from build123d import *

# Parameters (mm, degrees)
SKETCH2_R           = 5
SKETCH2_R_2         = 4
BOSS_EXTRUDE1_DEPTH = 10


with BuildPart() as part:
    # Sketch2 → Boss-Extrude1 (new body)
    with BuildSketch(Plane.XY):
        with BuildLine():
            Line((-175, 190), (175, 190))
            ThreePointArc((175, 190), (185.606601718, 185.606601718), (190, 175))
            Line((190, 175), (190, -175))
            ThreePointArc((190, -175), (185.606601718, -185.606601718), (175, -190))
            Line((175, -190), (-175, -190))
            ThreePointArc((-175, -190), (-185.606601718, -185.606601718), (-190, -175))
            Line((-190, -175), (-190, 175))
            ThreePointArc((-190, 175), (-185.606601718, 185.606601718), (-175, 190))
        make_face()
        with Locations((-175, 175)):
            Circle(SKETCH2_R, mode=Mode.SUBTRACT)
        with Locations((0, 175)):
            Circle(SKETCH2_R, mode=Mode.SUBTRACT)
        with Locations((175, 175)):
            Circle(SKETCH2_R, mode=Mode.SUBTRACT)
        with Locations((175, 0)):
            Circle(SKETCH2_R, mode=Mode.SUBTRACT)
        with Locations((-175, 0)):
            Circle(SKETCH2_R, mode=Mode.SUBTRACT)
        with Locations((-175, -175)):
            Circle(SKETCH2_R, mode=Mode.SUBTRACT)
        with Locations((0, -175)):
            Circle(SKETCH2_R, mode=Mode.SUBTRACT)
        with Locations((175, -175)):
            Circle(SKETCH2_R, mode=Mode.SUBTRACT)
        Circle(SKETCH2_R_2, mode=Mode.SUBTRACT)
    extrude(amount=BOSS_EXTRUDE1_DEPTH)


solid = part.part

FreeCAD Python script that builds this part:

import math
import FreeCAD as App
import Part
import Sketcher

doc = App.newDocument("Part")
params = doc.addObject("Spreadsheet::Sheet", "Params")
for row, (alias, value) in enumerate([
    ("sketch1_diameter", "10 mm"),
    ("sketch1_diameter2", "8 mm"),
    ("sketch1_radius", "15 mm"),
    ("sketch1_width", "350 mm"),
    ("pad1_length", "10 mm"),
], start=1):
    params.set(f"A{row}", alias)
    params.set(f"B{row}", "=" + value)
    params.setAlias(f"B{row}", alias)

body = doc.addObject("PartDesign::Body", "Body")

sketch1 = body.newObject("Sketcher::SketchObject", "Sketch")
sketch1.AttachmentSupport = (doc.getObject("XY_Plane"), [""])
sketch1.MapMode = "FlatFace"
sketch1.addGeometry([
    Part.LineSegment(App.Vector(175, 190, 0), App.Vector(-175, 190, 0)),
    Part.ArcOfCircle(Part.Circle(App.Vector(-175, 175, 0), App.Vector(0, 0, 1), 15), math.radians(90), math.radians(180)),
    Part.LineSegment(App.Vector(-190, 175, 0), App.Vector(-190, -175, 0)),
    Part.ArcOfCircle(Part.Circle(App.Vector(-175, -175, 0), App.Vector(0, 0, 1), 15), math.radians(180), math.radians(270)),
    Part.LineSegment(App.Vector(-175, -190, 0), App.Vector(175, -190, 0)),
    Part.ArcOfCircle(Part.Circle(App.Vector(175, -175, 0), App.Vector(0, 0, 1), 15), math.radians(-90), math.radians(0)),
    Part.LineSegment(App.Vector(190, -175, 0), App.Vector(190, 175, 0)),
    Part.ArcOfCircle(Part.Circle(App.Vector(175, 175, 0), App.Vector(0, 0, 1), 15), math.radians(0), math.radians(90)),
    Part.Circle(App.Vector(175, -175, 0), App.Vector(0, 0, 1), 5),
    Part.Circle(App.Vector(0, -175, 0), App.Vector(0, 0, 1), 5),
    Part.Circle(App.Vector(-175, -175, 0), App.Vector(0, 0, 1), 5),
    Part.Circle(App.Vector(175, 0, 0), App.Vector(0, 0, 1), 5),
    Part.Circle(App.Vector(175, 175, 0), App.Vector(0, 0, 1), 5),
    Part.Circle(App.Vector(0, 0, 0), App.Vector(0, 0, 1), 4),
    Part.Circle(App.Vector(-175, 0, 0), App.Vector(0, 0, 1), 5),
    Part.Circle(App.Vector(0, 175, 0), App.Vector(0, 0, 1), 5),
    Part.Circle(App.Vector(-175, 175, 0), App.Vector(0, 0, 1), 5),
], False)
sketch1.addConstraint([
    Sketcher.Constraint("Tangent", 0, 2, 1, 1),
    Sketcher.Constraint("Tangent", 1, 2, 2, 1),
    Sketcher.Constraint("Tangent", 2, 2, 3, 1),
    Sketcher.Constraint("Tangent", 3, 2, 4, 1),
    Sketcher.Constraint("Tangent", 4, 2, 5, 1),
    Sketcher.Constraint("Tangent", 5, 2, 6, 1),
    Sketcher.Constraint("Tangent", 6, 2, 7, 1),
    Sketcher.Constraint("Tangent", 7, 2, 0, 1),
    Sketcher.Constraint("Horizontal", 0),
    Sketcher.Constraint("Vertical", 2),
    Sketcher.Constraint("Horizontal", 4),
    Sketcher.Constraint("Vertical", 6),
    Sketcher.Constraint("Coincident", 13, 3, -1, 1),
    Sketcher.Constraint("Coincident", 8, 3, 5, 3),
    Sketcher.Constraint("Coincident", 10, 3, 3, 3),
    Sketcher.Constraint("Coincident", 12, 3, 7, 3),
    Sketcher.Constraint("Coincident", 16, 3, 1, 3),
    Sketcher.Constraint("Equal", 1, 3),
    Sketcher.Constraint("Equal", 3, 5),
    Sketcher.Constraint("Equal", 5, 7),
    Sketcher.Constraint("Equal", 8, 9),
    Sketcher.Constraint("Equal", 9, 10),
    Sketcher.Constraint("Equal", 10, 11),
    Sketcher.Constraint("Equal", 11, 12),
    Sketcher.Constraint("Equal", 12, 14),
    Sketcher.Constraint("Equal", 14, 15),
    Sketcher.Constraint("Equal", 15, 16),
    Sketcher.Constraint("Symmetric", 1, 3, 5, 3, -1, 1),
    Sketcher.Constraint("Symmetric", 11, 3, 14, 3, -1, 1),
    Sketcher.Constraint("Symmetric", 9, 3, 15, 3, -1, 1),
    Sketcher.Constraint("PointOnObject", 9, 3, -2),
    Sketcher.Constraint("PointOnObject", 11, 3, -1),
    Sketcher.Constraint("Horizontal", 8, 3, 9, 3),
    Sketcher.Constraint("Vertical", 8, 3, 11, 3),
    Sketcher.Constraint("Equal", 4, 2),
    Sketcher.Constraint("Diameter", 8, 10.0),
    Sketcher.Constraint("Diameter", 13, 8.0),
    Sketcher.Constraint("Radius", 1, 15.0),
    Sketcher.Constraint("DistanceX", 0, 2, 0, 1, 350.0),
])
sketch1.setExpression("Constraints[35]", "Params.sketch1_diameter")
sketch1.setExpression("Constraints[36]", "Params.sketch1_diameter2")
sketch1.setExpression("Constraints[37]", "Params.sketch1_radius")
sketch1.setExpression("Constraints[38]", "Params.sketch1_width")
pad1 = body.newObject("PartDesign::Pad", "Pad")
pad1.Profile = sketch1
pad1.setExpression("Length", "Params.pad1_length")

doc.recompute()
